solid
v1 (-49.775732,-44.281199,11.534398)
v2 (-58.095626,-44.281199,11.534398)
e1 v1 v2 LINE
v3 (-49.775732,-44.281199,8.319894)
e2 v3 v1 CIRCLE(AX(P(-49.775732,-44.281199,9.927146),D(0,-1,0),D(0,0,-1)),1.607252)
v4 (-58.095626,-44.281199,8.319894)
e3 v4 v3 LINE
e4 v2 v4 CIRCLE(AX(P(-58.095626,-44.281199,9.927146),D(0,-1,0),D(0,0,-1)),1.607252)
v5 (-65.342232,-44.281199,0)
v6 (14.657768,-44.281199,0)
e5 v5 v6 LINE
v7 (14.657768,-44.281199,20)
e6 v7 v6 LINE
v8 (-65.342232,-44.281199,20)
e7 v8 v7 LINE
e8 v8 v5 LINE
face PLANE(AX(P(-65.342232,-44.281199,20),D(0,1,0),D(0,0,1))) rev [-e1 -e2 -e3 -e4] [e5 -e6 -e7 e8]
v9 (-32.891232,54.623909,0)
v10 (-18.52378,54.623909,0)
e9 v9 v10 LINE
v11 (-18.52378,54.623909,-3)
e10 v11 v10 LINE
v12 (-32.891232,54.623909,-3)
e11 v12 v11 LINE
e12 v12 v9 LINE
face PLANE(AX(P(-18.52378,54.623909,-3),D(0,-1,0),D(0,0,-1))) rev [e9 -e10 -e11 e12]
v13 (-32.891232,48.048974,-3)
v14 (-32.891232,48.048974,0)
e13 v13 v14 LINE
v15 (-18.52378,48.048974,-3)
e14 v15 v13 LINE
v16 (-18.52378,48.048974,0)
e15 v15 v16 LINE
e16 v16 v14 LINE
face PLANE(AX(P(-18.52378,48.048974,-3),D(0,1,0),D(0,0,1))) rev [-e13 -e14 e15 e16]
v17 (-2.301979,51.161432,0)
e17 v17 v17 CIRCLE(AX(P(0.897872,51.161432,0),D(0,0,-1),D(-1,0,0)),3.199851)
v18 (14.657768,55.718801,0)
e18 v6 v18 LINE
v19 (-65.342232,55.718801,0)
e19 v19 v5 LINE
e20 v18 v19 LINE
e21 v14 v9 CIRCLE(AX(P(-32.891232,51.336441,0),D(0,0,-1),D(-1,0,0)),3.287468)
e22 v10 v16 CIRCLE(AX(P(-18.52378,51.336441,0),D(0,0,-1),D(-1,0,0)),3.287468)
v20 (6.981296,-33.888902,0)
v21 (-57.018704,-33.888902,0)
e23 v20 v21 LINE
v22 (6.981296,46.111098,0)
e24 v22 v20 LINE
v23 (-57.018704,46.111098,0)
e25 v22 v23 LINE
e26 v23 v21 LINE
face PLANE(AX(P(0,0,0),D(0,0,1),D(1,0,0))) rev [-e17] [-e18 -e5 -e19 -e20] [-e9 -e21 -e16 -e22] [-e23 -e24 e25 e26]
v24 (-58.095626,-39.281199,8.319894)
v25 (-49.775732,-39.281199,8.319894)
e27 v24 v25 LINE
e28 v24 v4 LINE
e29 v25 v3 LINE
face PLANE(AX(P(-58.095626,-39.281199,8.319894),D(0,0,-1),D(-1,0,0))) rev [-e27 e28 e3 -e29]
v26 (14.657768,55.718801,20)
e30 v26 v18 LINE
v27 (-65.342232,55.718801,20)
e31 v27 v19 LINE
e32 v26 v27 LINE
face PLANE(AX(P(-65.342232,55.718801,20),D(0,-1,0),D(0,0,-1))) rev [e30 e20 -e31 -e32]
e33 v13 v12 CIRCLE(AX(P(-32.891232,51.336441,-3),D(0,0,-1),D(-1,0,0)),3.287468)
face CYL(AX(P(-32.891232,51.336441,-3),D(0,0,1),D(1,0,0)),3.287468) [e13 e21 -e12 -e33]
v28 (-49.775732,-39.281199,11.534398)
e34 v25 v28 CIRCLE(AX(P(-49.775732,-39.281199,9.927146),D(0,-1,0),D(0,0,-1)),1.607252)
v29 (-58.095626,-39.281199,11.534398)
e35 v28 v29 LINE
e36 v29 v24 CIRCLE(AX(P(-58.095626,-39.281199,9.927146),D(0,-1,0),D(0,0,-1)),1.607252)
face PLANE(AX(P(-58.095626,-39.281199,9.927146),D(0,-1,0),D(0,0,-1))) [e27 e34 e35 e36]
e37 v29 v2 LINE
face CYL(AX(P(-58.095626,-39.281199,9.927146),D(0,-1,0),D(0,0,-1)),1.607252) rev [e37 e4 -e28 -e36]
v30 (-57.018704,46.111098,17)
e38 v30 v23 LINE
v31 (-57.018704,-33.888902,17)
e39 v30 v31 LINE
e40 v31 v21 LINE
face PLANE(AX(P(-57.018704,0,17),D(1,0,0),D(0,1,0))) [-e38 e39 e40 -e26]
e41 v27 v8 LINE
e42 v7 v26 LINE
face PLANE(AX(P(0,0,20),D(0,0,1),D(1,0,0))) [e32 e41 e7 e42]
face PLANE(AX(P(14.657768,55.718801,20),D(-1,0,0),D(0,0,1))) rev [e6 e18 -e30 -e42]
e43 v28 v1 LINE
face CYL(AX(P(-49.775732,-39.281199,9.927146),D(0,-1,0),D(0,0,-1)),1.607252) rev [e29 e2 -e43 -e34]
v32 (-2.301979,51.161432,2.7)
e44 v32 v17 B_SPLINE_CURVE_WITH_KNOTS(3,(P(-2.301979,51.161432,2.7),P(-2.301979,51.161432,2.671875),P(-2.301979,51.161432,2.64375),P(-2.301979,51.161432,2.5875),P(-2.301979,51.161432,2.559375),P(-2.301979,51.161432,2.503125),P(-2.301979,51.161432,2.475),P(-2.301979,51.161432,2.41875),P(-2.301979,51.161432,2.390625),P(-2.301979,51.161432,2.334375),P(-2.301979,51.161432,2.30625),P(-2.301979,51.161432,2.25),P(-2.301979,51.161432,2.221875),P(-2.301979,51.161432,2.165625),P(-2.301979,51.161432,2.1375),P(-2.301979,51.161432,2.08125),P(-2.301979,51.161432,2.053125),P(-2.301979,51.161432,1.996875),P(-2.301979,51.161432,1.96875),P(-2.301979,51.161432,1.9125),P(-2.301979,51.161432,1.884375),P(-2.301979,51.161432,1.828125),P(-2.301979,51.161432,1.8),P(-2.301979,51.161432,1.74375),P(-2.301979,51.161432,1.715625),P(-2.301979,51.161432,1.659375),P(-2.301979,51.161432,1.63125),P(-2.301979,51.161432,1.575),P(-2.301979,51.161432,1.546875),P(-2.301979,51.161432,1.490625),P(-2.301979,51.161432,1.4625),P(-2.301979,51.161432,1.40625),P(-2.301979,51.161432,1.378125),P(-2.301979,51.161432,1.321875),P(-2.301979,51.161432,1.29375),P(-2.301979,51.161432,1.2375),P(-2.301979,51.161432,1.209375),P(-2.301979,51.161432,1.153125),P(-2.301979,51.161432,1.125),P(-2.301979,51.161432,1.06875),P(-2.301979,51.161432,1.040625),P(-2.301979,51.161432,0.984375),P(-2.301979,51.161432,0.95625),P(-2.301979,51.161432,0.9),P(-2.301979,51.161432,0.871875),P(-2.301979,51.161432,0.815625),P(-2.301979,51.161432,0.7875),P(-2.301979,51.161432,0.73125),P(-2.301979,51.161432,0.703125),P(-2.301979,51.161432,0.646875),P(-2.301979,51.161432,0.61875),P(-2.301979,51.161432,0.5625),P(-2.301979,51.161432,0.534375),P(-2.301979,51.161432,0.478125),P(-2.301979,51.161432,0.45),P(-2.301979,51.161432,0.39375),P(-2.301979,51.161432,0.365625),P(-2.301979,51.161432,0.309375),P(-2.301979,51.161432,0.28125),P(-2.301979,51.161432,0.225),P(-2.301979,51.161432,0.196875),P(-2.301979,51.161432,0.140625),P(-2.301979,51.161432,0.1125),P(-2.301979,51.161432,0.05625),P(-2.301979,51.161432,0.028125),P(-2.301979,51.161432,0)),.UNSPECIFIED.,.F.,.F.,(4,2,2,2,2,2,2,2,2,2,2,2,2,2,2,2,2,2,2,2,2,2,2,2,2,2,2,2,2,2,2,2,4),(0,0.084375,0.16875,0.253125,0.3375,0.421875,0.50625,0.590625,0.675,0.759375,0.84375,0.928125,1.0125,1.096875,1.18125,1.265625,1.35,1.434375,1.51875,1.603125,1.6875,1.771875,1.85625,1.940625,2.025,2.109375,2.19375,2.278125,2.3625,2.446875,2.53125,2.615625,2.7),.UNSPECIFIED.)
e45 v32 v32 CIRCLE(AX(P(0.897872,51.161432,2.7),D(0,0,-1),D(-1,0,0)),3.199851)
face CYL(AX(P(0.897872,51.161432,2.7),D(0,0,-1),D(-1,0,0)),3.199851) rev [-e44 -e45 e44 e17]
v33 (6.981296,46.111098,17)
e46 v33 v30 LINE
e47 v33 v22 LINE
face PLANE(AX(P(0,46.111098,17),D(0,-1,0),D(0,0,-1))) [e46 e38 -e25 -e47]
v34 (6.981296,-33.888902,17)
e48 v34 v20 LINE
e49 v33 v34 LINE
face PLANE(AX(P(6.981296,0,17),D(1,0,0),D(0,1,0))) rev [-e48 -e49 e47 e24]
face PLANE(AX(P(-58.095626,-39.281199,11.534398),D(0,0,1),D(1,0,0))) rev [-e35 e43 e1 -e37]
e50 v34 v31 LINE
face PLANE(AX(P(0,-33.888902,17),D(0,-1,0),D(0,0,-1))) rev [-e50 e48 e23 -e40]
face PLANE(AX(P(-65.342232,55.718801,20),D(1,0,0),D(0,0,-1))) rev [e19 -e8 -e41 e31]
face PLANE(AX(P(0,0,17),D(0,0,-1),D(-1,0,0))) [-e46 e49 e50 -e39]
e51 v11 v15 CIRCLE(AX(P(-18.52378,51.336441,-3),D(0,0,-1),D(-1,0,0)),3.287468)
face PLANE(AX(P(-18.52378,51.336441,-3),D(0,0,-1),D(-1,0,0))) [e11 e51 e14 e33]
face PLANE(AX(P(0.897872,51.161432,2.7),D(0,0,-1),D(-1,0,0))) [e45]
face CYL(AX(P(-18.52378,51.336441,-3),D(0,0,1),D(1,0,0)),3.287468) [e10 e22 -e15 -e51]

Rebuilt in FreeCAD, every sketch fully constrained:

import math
import FreeCAD as App
import Part
import Sketcher

V = App.Vector

doc = App.newDocument("Part")
body = doc.addObject("PartDesign::Body", "Body")

# Sketch on XY plane
sketch1 = doc.addObject("Sketcher::SketchObject", "Sketch")
body.addObject(sketch1)
sketch1.AttachmentSupport = (doc.XY_Plane, [""])
sketch1.MapMode = "FlatFace"
sketch1.addGeometry(Part.LineSegment(V(-65, 56, 0), V(-65, -44, 0)), False)
sketch1.addGeometry(Part.LineSegment(V(-65, -44, 0), V(15, -44, 0)), False)
sketch1.addGeometry(Part.LineSegment(V(15, -44, 0), V(15, 56, 0)), False)
sketch1.addGeometry(Part.LineSegment(V(15, 56, 0), V(-65, 56, 0)), False)
sketch1.addConstraint(Sketcher.Constraint("Coincident", 0, 2, 1, 1))
sketch1.addConstraint(Sketcher.Constraint("Coincident", 1, 2, 2, 1))
sketch1.addConstraint(Sketcher.Constraint("Coincident", 2, 2, 3, 1))
sketch1.addConstraint(Sketcher.Constraint("Coincident", 3, 2, 0, 1))
sketch1.addConstraint(Sketcher.Constraint("Vertical", 0))
sketch1.addConstraint(Sketcher.Constraint("Horizontal", 1))
sketch1.addConstraint(Sketcher.Constraint("Vertical", 2))
sketch1.addConstraint(Sketcher.Constraint("Horizontal", 3))
sketch1.addConstraint(Sketcher.Constraint("DistanceX", 1, 1, 1, 2, 80.0))
sketch1.addConstraint(Sketcher.Constraint("DistanceY", 0, 2, 0, 1, 100.0))
sketch1.addConstraint(Sketcher.Constraint("DistanceY", 0, 2, -1, 1, 44.281199))
sketch1.addConstraint(Sketcher.Constraint("DistanceX", 0, 2, -1, 1, 65.342232))
pad1 = doc.addObject("PartDesign::Pad", "Pad")
body.addObject(pad1)
pad1.Profile = sketch1
pad1.Length = 20

# Sketch on XY plane
sketch2 = doc.addObject("Sketcher::SketchObject", "Sketch001")
body.addObject(sketch2)
sketch2.AttachmentSupport = (doc.XY_Plane, [""])
sketch2.MapMode = "FlatFace"
sketch2.addGeometry(Part.LineSegment(V(7, 46, 0), V(7, -34, 0)), False)
sketch2.addGeometry(Part.LineSegment(V(7, -34, 0), V(-57, -34, 0)), False)
sketch2.addGeometry(Part.LineSegment(V(-57, -34, 0), V(-57, 46, 0)), False)
sketch2.addGeometry(Part.LineSegment(V(-57, 46, 0), V(7, 46, 0)), False)
sketch2.addConstraint(Sketcher.Constraint("Coincident", 0, 2, 1, 1))
sketch2.addConstraint(Sketcher.Constraint("Coincident", 1, 2, 2, 1))
sketch2.addConstraint(Sketcher.Constraint("Coincident", 2, 2, 3, 1))
sketch2.addConstraint(Sketcher.Constraint("Coincident", 3, 2, 0, 1))
sketch2.addConstraint(Sketcher.Constraint("Vertical", 0))
sketch2.addConstraint(Sketcher.Constraint("Horizontal", 1))
sketch2.addConstraint(Sketcher.Constraint("Vertical", 2))
sketch2.addConstraint(Sketcher.Constraint("Horizontal", 3))
sketch2.addConstraint(Sketcher.Constraint("DistanceX", 1, 2, 1, 1, 64.0))
sketch2.addConstraint(Sketcher.Constraint("DistanceY", 0, 2, 0, 1, 80.0))
sketch2.addConstraint(Sketcher.Constraint("DistanceX", -1, 1, 0, 2, 6.981296))
sketch2.addConstraint(Sketcher.Constraint("DistanceY", 0, 2, -1, 1, 33.888902))
pocket1 = doc.addObject("PartDesign::Pocket", "Pocket")
body.addObject(pocket1)
pocket1.Profile = sketch2
pocket1.Length = 17
pocket1.Reversed = True

# Sketch on XY plane
sketch3 = doc.addObject("Sketcher::SketchObject", "Sketch002")
body.addObject(sketch3)
sketch3.AttachmentSupport = (doc.XY_Plane, [""])
sketch3.MapMode = "FlatFace"
sketch3.addGeometry(Part.LineSegment(V(-32.9, 54.6, 0), V(-18.5, 54.6, 0)), False)
sketch3.addGeometry(Part.ArcOfCircle(Part.Circle(V(-18.5, 51.3, 0), V(0, 0, 1), 3.3), math.radians(-90), math.radians(90)), False)
sketch3.addGeometry(Part.LineSegment(V(-18.5, 48, 0), V(-32.9, 48, 0)), False)
sketch3.addGeometry(Part.ArcOfCircle(Part.Circle(V(-32.9, 51.3, 0), V(0, 0, 1), 3.3), math.radians(90), math.radians(270)), False)
sketch3.addConstraint(Sketcher.Constraint("Tangent", 0, 2, 1, 2))
sketch3.addConstraint(Sketcher.Constraint("Tangent", 1, 1, 2, 1))
sketch3.addConstraint(Sketcher.Constraint("Tangent", 2, 2, 3, 2))
sketch3.addConstraint(Sketcher.Constraint("Tangent", 3, 1, 0, 1))
sketch3.addConstraint(Sketcher.Constraint("Horizontal", 0))
sketch3.addConstraint(Sketcher.Constraint("Horizontal", 2))
sketch3.addConstraint(Sketcher.Constraint("Radius", 1, 3.287468))
sketch3.addConstraint(Sketcher.Constraint("DistanceX", 0, 1, 0, 2, 14.367452))
sketch3.addConstraint(Sketcher.Constraint("DistanceX", 1, 3, -1, 1, 18.52378))
sketch3.addConstraint(Sketcher.Constraint("DistanceY", -1, 1, 1, 3, 51.336441))
pad2 = doc.addObject("PartDesign::Pad", "Pad001")
body.addObject(pad2)
pad2.Profile = sketch3
pad2.Length = 3
pad2.Reversed = True

# Sketch on XY plane
sketch4 = doc.addObject("Sketcher::SketchObject", "Sketch003")
body.addObject(sketch4)
sketch4.AttachmentSupport = (doc.XY_Plane, [""])
sketch4.MapMode = "FlatFace"
sketch4.addGeometry(Part.Circle(V(0.9, 51.2, 0), V(0, 0, 1), 3.2), False)
sketch4.addConstraint(Sketcher.Constraint("Diameter", 0, 6.399702))
sketch4.addConstraint(Sketcher.Constraint("DistanceX", -1, 1, 0, 3, 0.897872))
sketch4.addConstraint(Sketcher.Constraint("DistanceY", -1, 1, 0, 3, 51.161432))
pocket2 = doc.addObject("PartDesign::Pocket", "Pocket001")
body.addObject(pocket2)
pocket2.Profile = sketch4
pocket2.Length = 2.7
pocket2.Reversed = True

# Sketch on XZ plane
sketch5 = doc.addObject("Sketcher::SketchObject", "Sketch004")
body.addObject(sketch5)
sketch5.AttachmentSupport = (doc.XZ_Plane, [""])
sketch5.MapMode = "FlatFace"
sketch5.AttachmentOffset = App.Placement(V(0, 0, 44.281199), App.Rotation())
sketch5.addGeometry(Part.LineSegment(V(-49.8, 11.5, 0), V(-58.1, 11.5, 0)), False)
sketch5.addGeometry(Part.ArcOfCircle(Part.Circle(V(-58.1, 9.9, 0), V(0, 0, 1), 1.6), math.radians(90), math.radians(270)), False)
sketch5.addGeometry(Part.LineSegment(V(-58.1, 8.3, 0), V(-49.8, 8.3, 0)), False)
sketch5.addGeometry(Part.ArcOfCircle(Part.Circle(V(-49.8, 9.9, 0), V(0, 0, 1), 1.6), math.radians(-90), math.radians(90)), False)
sketch5.addConstraint(Sketcher.Constraint("Tangent", 0, 2, 1, 1))
sketch5.addConstraint(Sketcher.Constraint("Tangent", 1, 2, 2, 1))
sketch5.addConstraint(Sketcher.Constraint("Tangent", 2, 2, 3, 1))
sketch5.addConstraint(Sketcher.Constraint("Tangent", 3, 2, 0, 1))
sketch5.addConstraint(Sketcher.Constraint("Horizontal", 0))
sketch5.addConstraint(Sketcher.Constraint("Horizontal", 2))
sketch5.addConstraint(Sketcher.Constraint("Radius", 1, 1.607252))
sketch5.addConstraint(Sketcher.Constraint("DistanceY", -1, 1, 0, 2, 11.534398))
sketch5.addConstraint(Sketcher.Constraint("DistanceX", 0, 2, 0, 1, 8.319894))
sketch5.addConstraint(Sketcher.Constraint("DistanceX", 1, 3, -1, 1, 58.095626))
pocket3 = doc.addObject("PartDesign::Pocket", "Pocket002")
body.addObject(pocket3)
pocket3.Profile = sketch5
pocket3.Length = 5

doc.recompute()
